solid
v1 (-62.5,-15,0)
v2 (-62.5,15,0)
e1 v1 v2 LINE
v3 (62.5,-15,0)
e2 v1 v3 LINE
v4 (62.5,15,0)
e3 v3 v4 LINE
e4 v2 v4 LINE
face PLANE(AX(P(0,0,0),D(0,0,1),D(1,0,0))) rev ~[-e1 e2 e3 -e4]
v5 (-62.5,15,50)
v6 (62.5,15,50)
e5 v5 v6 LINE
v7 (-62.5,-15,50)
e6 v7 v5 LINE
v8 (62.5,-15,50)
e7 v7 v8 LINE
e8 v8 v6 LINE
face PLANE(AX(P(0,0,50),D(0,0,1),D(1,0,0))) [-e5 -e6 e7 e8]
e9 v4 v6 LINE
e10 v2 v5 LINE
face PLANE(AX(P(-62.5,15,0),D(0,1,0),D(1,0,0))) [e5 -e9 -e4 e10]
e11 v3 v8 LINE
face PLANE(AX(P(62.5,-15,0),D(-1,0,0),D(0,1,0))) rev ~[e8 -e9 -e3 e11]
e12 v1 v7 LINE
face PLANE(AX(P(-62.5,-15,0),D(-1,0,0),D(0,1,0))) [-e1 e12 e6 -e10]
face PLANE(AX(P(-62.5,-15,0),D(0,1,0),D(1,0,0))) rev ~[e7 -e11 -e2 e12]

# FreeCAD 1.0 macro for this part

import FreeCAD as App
import Part
import Sketcher
Q = App.Units.Quantity

doc = App.newDocument("Part")
body = doc.addObject("PartDesign::Body", "Body")

sketch1 = body.newObject("Sketcher::SketchObject", "Sketch")
sketch1.AttachmentSupport = (doc.getObject("XY_Plane"), [""])
sketch1.MapMode = "FlatFace"
sketch1.addGeometry([
    Part.LineSegment(App.Vector(-62, 15, 0), App.Vector(-62, -15, 0)),
    Part.LineSegment(App.Vector(-62, -15, 0), App.Vector(62, -15, 0)),
    Part.LineSegment(App.Vector(62, -15, 0), App.Vector(62, 15, 0)),
    Part.LineSegment(App.Vector(62, 15, 0), App.Vector(-62, 15, 0)),
], False)
sketch1.addConstraint([
    Sketcher.Constraint("Coincident", 0, 2, 1, 1),
    Sketcher.Constraint("Coincident", 1, 2, 2, 1),
    Sketcher.Constraint("Coincident", 2, 2, 3, 1),
    Sketcher.Constraint("Coincident", 3, 2, 0, 1),
    Sketcher.Constraint("Vertical", 0),
    Sketcher.Constraint("Horizontal", 1),
    Sketcher.Constraint("Vertical", 2),
    Sketcher.Constraint("Horizontal", 3),
    Sketcher.Constraint("Symmetric", 0, 2, 2, 2, -1, 1),
    Sketcher.Constraint("DistanceX", 1, 1, 1, 2, Q("125 mm")),
    Sketcher.Constraint("DistanceY", 0, 2, 0, 1, Q("30 mm")),
])
pad1 = body.newObject("PartDesign::Pad", "Pad")
pad1.Profile = sketch1
pad1.Length = 50

doc.recompute()
